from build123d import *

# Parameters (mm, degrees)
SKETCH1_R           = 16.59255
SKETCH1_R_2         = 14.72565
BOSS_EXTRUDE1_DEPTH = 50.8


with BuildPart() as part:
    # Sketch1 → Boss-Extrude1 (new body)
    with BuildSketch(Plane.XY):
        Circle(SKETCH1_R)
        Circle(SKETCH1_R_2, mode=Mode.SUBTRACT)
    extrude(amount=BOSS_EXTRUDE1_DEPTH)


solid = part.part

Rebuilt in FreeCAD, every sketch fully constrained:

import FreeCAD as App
import Part
import Sketcher
from FreeCAD import Vector
Q = App.Units.Quantity

doc = App.newDocument("Part")
body = doc.addObject("PartDesign::Body", "Body")

# Sketch on XY plane
sketch1 = body.newObject("Sketcher::SketchObject", "Sketch")
sketch1.AttachmentSupport = (doc.getObject("XY_Plane"), [""])
sketch1.MapMode = "FlatFace"
sketch1.addGeometry(Part.Circle(Vector(0, 0, 0), Vector(0, 0, 1), 17), False)
sketch1.addGeometry(Part.Circle(Vector(0, 0, 0), Vector(0, 0, 1), 15), False)
sketch1.addConstraint(Sketcher.Constraint("Coincident", 0, 3, -1, 1))
sketch1.addConstraint(Sketcher.Constraint("Coincident", 1, 3, -1, 1))
sketch1.addConstraint(Sketcher.Constraint("Diameter", 0, Q("1.3065 in")))
sketch1.addConstraint(Sketcher.Constraint("Diameter", 1, Q("1.1595 in")))
pad1 = body.newObject("PartDesign::Pad", "Pad")
pad1.Profile = sketch1
pad1.Length = Q("2 in")

doc.recompute()
